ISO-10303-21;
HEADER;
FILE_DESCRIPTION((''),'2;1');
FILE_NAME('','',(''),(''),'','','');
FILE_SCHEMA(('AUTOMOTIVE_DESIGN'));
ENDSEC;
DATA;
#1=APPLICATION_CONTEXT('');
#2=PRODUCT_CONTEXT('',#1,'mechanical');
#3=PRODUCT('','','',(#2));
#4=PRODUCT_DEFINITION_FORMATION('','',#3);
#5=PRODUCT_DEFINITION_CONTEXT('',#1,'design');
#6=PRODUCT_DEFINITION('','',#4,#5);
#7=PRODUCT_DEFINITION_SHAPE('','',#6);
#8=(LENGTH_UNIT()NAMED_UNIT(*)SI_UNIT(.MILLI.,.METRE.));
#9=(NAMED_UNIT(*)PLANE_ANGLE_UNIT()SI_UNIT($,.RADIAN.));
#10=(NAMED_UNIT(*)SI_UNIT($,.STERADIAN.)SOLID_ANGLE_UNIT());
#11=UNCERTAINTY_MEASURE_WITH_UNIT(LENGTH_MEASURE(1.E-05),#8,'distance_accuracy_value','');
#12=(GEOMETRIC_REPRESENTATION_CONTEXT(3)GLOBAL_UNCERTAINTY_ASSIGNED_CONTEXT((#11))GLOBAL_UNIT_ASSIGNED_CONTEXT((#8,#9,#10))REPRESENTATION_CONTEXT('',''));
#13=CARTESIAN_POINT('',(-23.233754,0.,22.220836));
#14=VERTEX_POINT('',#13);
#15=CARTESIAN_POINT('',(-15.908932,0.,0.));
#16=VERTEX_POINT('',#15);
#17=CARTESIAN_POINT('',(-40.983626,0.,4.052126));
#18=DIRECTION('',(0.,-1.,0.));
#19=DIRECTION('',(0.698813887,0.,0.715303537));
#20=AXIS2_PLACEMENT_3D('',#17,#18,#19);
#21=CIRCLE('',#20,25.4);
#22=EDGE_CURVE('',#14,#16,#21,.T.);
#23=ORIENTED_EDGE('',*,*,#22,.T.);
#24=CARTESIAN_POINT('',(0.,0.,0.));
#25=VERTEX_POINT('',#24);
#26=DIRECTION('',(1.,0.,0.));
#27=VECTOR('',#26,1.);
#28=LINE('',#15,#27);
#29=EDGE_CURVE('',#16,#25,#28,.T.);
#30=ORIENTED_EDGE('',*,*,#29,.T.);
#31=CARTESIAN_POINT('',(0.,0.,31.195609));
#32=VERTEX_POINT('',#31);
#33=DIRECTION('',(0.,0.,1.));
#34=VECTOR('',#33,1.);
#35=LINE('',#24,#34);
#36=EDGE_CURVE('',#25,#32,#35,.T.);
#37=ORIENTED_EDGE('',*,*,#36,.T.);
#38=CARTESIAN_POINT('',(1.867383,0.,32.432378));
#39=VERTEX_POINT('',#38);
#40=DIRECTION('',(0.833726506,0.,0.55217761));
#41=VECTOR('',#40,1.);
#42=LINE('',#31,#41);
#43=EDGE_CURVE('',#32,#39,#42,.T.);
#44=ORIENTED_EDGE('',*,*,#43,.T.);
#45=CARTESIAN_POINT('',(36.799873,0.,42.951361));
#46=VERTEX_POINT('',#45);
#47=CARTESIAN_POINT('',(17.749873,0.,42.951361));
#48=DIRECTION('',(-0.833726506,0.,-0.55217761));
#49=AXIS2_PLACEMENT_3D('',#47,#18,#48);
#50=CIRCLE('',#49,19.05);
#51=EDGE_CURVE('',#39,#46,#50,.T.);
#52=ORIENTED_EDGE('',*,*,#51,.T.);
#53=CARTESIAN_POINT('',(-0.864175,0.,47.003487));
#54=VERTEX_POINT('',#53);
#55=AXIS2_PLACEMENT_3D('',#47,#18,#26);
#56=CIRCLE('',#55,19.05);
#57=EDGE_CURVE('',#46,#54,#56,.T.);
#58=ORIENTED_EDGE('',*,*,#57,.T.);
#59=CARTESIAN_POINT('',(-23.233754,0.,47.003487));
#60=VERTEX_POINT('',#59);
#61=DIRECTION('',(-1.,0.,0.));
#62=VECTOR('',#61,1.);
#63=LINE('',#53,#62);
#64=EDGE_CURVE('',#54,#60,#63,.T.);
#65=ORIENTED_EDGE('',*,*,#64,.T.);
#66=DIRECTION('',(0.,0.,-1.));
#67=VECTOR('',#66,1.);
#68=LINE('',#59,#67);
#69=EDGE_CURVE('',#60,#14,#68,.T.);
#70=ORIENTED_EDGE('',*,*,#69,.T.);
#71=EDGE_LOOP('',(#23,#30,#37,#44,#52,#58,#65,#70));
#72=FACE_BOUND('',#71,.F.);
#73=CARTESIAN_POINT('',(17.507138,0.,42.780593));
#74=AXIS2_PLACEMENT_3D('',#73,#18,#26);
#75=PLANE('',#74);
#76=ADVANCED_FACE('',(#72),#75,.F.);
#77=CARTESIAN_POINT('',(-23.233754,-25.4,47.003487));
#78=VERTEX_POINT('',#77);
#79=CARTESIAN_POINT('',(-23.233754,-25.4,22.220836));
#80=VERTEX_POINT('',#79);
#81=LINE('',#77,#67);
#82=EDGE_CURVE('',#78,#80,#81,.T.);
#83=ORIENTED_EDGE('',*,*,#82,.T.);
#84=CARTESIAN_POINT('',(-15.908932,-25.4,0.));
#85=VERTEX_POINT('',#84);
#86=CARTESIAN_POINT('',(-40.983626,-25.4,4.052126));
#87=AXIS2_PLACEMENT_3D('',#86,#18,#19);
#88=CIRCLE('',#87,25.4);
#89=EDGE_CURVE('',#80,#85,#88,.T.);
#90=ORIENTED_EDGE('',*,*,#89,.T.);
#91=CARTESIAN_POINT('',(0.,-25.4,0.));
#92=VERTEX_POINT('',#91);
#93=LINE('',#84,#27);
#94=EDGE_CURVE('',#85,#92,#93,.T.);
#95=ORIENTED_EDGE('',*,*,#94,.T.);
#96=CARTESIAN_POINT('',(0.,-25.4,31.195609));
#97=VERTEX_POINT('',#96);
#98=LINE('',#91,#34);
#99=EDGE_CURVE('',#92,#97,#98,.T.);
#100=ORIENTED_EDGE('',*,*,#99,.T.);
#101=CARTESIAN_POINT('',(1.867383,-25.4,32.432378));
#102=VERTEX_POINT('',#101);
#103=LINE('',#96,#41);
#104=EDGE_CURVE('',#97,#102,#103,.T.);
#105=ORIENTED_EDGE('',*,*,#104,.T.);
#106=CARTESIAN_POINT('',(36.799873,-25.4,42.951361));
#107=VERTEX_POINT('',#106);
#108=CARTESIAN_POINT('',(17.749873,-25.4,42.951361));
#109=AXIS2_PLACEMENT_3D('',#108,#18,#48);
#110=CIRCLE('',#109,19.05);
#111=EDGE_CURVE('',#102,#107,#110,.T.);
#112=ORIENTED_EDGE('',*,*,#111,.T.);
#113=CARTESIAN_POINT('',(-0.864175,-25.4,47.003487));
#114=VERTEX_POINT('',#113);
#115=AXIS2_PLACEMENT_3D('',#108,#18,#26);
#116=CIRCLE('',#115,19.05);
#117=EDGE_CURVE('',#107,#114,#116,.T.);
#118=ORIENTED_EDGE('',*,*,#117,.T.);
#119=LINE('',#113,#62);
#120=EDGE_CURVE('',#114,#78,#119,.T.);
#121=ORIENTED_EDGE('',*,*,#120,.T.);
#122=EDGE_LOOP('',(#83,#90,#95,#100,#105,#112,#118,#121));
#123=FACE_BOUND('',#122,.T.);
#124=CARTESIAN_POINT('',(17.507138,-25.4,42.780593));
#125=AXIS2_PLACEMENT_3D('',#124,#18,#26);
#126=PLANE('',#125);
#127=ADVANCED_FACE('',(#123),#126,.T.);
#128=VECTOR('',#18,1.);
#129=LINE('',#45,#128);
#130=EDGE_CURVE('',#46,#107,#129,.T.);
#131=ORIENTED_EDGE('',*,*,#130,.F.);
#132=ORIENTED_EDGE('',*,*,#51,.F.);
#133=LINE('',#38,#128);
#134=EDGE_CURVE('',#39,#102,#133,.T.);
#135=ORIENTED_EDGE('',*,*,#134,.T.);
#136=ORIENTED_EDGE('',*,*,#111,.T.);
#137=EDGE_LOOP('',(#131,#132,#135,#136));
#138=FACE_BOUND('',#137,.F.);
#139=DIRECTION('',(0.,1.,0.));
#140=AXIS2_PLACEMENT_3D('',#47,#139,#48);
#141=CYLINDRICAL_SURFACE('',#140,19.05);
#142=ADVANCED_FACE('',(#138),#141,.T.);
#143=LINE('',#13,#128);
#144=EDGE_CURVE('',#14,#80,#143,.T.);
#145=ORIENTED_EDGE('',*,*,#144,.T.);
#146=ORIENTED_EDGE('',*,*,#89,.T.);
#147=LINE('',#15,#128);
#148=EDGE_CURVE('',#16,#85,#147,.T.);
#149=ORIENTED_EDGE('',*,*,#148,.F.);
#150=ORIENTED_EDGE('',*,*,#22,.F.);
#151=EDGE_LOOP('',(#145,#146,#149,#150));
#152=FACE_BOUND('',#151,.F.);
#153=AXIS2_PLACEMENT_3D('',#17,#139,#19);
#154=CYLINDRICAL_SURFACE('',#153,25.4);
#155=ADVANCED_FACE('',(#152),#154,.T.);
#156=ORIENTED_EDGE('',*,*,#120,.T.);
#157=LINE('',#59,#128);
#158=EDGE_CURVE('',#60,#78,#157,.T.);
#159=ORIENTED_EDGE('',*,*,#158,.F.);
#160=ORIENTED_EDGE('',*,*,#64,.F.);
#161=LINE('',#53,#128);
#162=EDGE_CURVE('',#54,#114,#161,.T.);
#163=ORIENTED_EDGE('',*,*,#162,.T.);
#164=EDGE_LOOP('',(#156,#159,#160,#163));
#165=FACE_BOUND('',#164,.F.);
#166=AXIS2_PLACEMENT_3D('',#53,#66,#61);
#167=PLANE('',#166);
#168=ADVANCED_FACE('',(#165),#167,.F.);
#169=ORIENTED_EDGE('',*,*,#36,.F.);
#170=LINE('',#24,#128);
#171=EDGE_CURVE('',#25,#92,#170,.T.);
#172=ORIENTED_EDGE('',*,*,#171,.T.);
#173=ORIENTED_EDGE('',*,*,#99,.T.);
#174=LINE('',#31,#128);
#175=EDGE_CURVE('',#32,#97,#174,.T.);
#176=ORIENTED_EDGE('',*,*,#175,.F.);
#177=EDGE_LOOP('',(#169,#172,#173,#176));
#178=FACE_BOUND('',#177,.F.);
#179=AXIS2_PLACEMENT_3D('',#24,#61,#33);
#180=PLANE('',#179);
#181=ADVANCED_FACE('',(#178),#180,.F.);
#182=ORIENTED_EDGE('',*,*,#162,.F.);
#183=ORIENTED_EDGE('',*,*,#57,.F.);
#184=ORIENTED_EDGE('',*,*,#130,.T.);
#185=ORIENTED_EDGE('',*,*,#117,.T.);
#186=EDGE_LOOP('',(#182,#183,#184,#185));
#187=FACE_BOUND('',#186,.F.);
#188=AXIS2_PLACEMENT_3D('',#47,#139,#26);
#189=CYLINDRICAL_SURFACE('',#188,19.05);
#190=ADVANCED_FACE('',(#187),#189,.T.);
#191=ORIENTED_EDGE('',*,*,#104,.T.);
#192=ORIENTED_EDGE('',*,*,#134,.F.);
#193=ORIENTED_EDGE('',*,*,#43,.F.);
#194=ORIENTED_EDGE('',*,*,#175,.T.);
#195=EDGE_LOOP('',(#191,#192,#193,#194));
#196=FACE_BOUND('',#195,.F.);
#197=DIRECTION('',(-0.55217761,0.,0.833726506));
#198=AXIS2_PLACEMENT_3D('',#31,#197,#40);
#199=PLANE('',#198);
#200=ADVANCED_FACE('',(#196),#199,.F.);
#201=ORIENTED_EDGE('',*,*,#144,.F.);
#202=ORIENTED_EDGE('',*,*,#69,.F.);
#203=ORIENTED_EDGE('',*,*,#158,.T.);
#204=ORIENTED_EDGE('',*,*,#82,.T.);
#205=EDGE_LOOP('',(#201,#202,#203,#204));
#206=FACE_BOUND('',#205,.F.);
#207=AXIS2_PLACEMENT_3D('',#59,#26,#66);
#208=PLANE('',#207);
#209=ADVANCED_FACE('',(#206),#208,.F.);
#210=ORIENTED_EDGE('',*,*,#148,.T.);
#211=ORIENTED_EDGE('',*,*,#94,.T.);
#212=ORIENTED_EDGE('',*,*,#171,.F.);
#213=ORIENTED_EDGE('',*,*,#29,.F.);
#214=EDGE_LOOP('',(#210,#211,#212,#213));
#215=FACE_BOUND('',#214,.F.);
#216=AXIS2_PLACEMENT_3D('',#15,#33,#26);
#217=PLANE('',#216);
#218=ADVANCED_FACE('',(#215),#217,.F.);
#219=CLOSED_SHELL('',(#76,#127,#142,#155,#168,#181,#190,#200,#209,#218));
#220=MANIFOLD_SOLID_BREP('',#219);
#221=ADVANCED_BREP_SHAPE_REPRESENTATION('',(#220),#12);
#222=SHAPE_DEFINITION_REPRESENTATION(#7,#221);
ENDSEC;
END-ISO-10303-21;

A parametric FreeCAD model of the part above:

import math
import FreeCAD as App
import Part
import Sketcher
Q = App.Units.Quantity

doc = App.newDocument("Part")
body = doc.addObject("PartDesign::Body", "Body")

sketch1 = doc.addObject("Sketcher::SketchObject", "Sketch")
body.addObject(sketch1)
sketch1.AttachmentSupport = (doc.XZ_Plane, [""])
sketch1.MapMode = "FlatFace"
sketch1.addGeometry([
    Part.ArcOfCircle(Part.Circle(App.Vector(-41, 4.1, 0), App.Vector(0, 0, 1), 25.4), math.radians(46), math.radians(351)),
    Part.LineSegment(App.Vector(-15.9, 0, 0), App.Vector(0, 0, 0)),
    Part.LineSegment(App.Vector(0, 0, 0), App.Vector(0, 31.2, 0)),
    Part.LineSegment(App.Vector(0, 31.2, 0), App.Vector(1.9, 32.4, 0)),
    Part.ArcOfCircle(Part.Circle(App.Vector(17.7, 43, 0), App.Vector(0, 0, 1), 19.1), math.radians(-146), math.radians(0)),
    Part.ArcOfCircle(Part.Circle(App.Vector(17.7, 43, 0), App.Vector(0, 0, 1), 19.1), math.radians(0), math.radians(168)),
    Part.LineSegment(App.Vector(-0.9, 47, 0), App.Vector(-23.2, 47, 0)),
    Part.LineSegment(App.Vector(-23.2, 47, 0), App.Vector(-23.2, 22.2, 0)),
], False)
sketch1.addConstraint([
    Sketcher.Constraint("Coincident", 0, 2, 1, 1),
    Sketcher.Constraint("Coincident", 1, 2, 2, 1),
    Sketcher.Constraint("Coincident", 2, 2, 3, 1),
    Sketcher.Constraint("Coincident", 3, 2, 4, 1),
    Sketcher.Constraint("Tangent", 4, 2, 5, 1),
    Sketcher.Constraint("Coincident", 5, 2, 6, 1),
    Sketcher.Constraint("Coincident", 6, 2, 7, 1),
    Sketcher.Constraint("Coincident", 7, 2, 0, 1),
    Sketcher.Constraint("Horizontal", 1),
    Sketcher.Constraint("Vertical", 2),
    Sketcher.Constraint("Horizontal", 6),
    Sketcher.Constraint("Vertical", 7),
    Sketcher.Constraint("Coincident", 1, 2, -1, 1),
    Sketcher.Constraint("Equal", 4, 5),
    Sketcher.Constraint("Horizontal", 5, 3, 4, 2),
    Sketcher.Constraint("Radius", 0, Q("1 in")),
    Sketcher.Constraint("Radius", 4, Q("0.75 in")),
    Sketcher.Constraint("DistanceX", 6, 2, 6, 1, Q("22.369579 mm")),
    Sketcher.Constraint("DistanceY", 2, 1, 2, 2, Q("31.195609 mm")),
    Sketcher.Constraint("DistanceY", 7, 2, 7, 1, Q("24.782651 mm")),
    Sketcher.Constraint("DistanceX", 0, 3, 4, 3, Q("58.733499 mm")),
    Sketcher.Constraint("DistanceX", 1, 1, 1, 2, Q("15.908932 mm")),
    Sketcher.Constraint("DistanceY", -1, 1, 4, 3, Q("42.951361 mm")),
    Sketcher.Constraint("DistanceY", 2, 2, 3, 2, Q("1.236769 mm")),
    Sketcher.Constraint("DistanceY", 3, 2, 5, 2, Q("14.57111 mm")),
])
pad1 = doc.addObject("PartDesign::Pad", "Pad")
body.addObject(pad1)
pad1.Profile = sketch1
pad1.Length = Q("1 in")

doc.recompute()
